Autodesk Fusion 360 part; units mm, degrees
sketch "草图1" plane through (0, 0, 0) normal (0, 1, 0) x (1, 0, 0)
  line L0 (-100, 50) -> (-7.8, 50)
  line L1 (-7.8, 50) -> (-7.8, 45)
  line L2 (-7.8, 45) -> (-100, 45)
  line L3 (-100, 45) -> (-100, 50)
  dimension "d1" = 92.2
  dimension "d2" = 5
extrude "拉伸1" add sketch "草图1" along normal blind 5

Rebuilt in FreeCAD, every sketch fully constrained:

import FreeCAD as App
import Part
import Sketcher

V = App.Vector
Q = App.Units.Quantity


def add_polygon(sketch, points):
    """Adds a closed chain of lines whose ends are joined by coincident constraints."""
    first, n = sketch.GeometryCount, len(points)
    for a, b in zip(points, points[1:] + points[:1]):
        sketch.addGeometry(Part.LineSegment(App.Vector(*a, 0), App.Vector(*b, 0)), False)
    for i in range(n):
        sketch.addConstraint(Sketcher.Constraint("Coincident", first + i, 2, first + (i + 1) % n, 1))

doc = App.newDocument("Part")
body = doc.addObject("PartDesign::Body", "Body")

# Sketch on XZ plane
sketch1 = body.newObject("Sketcher::SketchObject", "Sketch")
sketch1.AttachmentSupport = (doc.getObject("XZ_Plane"), [""])
sketch1.MapMode = "FlatFace"
add_polygon(sketch1, [(-7.8, -50), (-100, -50), (-100, -45), (-7.8, -45)])  # lines 0-3
sketch1.addConstraint([
    Sketcher.Constraint("Horizontal", 0),
    Sketcher.Constraint("Vertical", 1),
    Sketcher.Constraint("Horizontal", 2),
    Sketcher.Constraint("Vertical", 3),
    Sketcher.Constraint("DistanceY", 1, 1, 1, 2, Q("5 mm")),
    Sketcher.Constraint("DistanceX", 0, 2, 0, 1, Q("92.2 mm")),
    Sketcher.Constraint("DistanceX", 0, 2, -1, 1, Q("100 mm")),
    Sketcher.Constraint("DistanceY", 0, 2, -1, 1, Q("50 mm")),
])
pad1 = body.newObject("PartDesign::Pad", "Pad")
pad1.Profile = sketch1
pad1.Length = 5
pad1.Reversed = True

doc.recompute()
